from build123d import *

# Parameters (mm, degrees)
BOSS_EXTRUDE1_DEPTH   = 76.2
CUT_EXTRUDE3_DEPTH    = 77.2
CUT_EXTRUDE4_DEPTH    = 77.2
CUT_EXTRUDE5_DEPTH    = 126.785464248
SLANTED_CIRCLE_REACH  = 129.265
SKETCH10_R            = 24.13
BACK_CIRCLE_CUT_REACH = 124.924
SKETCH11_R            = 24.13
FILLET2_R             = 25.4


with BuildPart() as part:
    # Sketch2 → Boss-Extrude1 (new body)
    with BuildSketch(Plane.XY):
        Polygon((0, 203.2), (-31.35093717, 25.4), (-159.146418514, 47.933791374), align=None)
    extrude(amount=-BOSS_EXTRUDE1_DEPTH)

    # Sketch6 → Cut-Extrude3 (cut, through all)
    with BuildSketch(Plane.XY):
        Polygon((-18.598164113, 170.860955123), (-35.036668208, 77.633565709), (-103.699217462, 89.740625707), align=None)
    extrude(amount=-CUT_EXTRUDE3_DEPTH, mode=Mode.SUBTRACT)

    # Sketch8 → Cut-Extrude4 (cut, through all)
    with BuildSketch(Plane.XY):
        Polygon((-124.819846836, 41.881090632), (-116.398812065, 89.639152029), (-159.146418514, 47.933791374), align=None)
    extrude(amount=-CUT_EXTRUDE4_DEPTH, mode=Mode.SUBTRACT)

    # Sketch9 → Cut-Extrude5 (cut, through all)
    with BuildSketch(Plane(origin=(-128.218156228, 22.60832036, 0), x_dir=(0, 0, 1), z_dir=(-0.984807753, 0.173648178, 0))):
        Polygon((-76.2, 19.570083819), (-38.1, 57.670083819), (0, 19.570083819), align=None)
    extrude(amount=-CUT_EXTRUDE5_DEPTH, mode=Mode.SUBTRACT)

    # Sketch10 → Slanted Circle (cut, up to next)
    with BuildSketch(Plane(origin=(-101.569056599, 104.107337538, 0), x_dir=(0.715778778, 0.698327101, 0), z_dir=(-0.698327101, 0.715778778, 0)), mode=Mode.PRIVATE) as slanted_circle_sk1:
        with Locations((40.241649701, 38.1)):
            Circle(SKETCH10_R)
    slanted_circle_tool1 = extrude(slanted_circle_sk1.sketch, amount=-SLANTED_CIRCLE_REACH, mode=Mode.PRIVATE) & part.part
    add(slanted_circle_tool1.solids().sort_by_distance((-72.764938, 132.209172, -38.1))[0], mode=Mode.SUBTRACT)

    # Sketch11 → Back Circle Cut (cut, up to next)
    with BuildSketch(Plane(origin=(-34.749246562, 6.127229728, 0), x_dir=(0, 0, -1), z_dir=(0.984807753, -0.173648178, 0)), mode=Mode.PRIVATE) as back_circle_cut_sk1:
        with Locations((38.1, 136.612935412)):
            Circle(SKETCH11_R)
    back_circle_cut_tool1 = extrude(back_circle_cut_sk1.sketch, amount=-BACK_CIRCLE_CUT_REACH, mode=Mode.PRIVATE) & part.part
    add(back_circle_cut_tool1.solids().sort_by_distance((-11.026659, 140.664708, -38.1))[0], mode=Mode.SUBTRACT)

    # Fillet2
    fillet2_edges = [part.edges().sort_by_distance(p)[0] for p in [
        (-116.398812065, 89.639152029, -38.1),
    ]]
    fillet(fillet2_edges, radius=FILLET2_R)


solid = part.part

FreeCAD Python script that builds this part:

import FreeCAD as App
import Part
import Sketcher

V = App.Vector
Q = App.Units.Quantity


def edges_at(feature, points):
    """Names of the edges that pass closest to the given points."""
    edges = feature.Shape.Edges
    near = lambda p: min(range(len(edges)), key=lambda i: edges[i].distToShape(Part.Vertex(*p))[0])
    return sorted({f"Edge{near(p) + 1}" for p in points})

doc = App.newDocument("Part")
body = doc.addObject("PartDesign::Body", "Body")

# Sketch on XY plane
sketch1 = doc.addObject("Sketcher::SketchObject", "Sketch")
body.addObject(sketch1)
sketch1.AttachmentSupport = (doc.XY_Plane, [""])
sketch1.MapMode = "FlatFace"
sketch1.addGeometry([
    Part.LineSegment(V(-31, 25, 0), V(0, 203, 0)),
    Part.LineSegment(V(0, 203, 0), V(-159, 48, 0)),
    Part.LineSegment(V(-159, 48, 0), V(-31, 25, 0)),
], False)
sketch1.addConstraint([
    Sketcher.Constraint("Coincident", 0, 2, 1, 1),
    Sketcher.Constraint("Coincident", 1, 2, 2, 1),
    Sketcher.Constraint("Coincident", 2, 2, 0, 1),
    Sketcher.Constraint("PointOnObject", 0, 2, -2),
    Sketcher.Constraint("Perpendicular", 0, 2),
    Sketcher.Constraint("DistanceY", -1, 1, 0, 2, Q("8 in")),
    Sketcher.Constraint("DistanceY", -1, 1, 2, 2, Q("1 in")),
    Sketcher.Constraint("Angle", 0, Q("80 deg")),
    Sketcher.Constraint("Distance", 1, 222.34023),
])
pad1 = doc.addObject("PartDesign::Pad", "Pad")
body.addObject(pad1)
pad1.Profile = sketch1
pad1.Length = Q("3 in")
pad1.Reversed = True

# Sketch on XY plane
sketch2 = doc.addObject("Sketcher::SketchObject", "Sketch001")
body.addObject(sketch2)
sketch2.AttachmentSupport = (doc.XY_Plane, [""])
sketch2.MapMode = "FlatFace"
sketch2.addGeometry([
    Part.LineSegment(V(-35, 78, 0), V(-19, 171, 0)),
    Part.LineSegment(V(-19, 171, 0), V(-104, 90, 0)),
    Part.LineSegment(V(-104, 90, 0), V(-35, 78, 0)),
], False)
sketch2.addConstraint([
    Sketcher.Constraint("Coincident", 0, 2, 1, 1),
    Sketcher.Constraint("Coincident", 1, 2, 2, 1),
    Sketcher.Constraint("Coincident", 2, 2, 0, 1),
    Sketcher.Constraint("Perpendicular", 0, 2),
    Sketcher.Constraint("Angle", 0, Q("80 deg")),
    Sketcher.Constraint("Distance", 2, 69.72178),
    Sketcher.Constraint("DistanceX", 2, 2, -1, 1, 35.036668),
    Sketcher.Constraint("DistanceY", 1, 2, 0, 2, 81.120329),
    Sketcher.Constraint("DistanceY", -1, 1, 0, 2, 170.860955),
])
pocket1 = doc.addObject("PartDesign::Pocket", "Pocket")
body.addObject(pocket1)
pocket1.Profile = sketch2
pocket1.Type = "ThroughAll"

# Sketch on XY plane
sketch3 = doc.addObject("Sketcher::SketchObject", "Sketch002")
body.addObject(sketch3)
sketch3.AttachmentSupport = (doc.XY_Plane, [""])
sketch3.MapMode = "FlatFace"
sketch3.addGeometry([
    Part.LineSegment(V(-125, 42, 0), V(-116, 90, 0)),
    Part.LineSegment(V(-116, 90, 0), V(-159, 48, 0)),
    Part.LineSegment(V(-159, 48, 0), V(-125, 42, 0)),
], False)
sketch3.addConstraint([
    Sketcher.Constraint("Coincident", 0, 2, 1, 1),
    Sketcher.Constraint("Coincident", 1, 2, 2, 1),
    Sketcher.Constraint("Coincident", 2, 2, 0, 1),
    Sketcher.Constraint("Perpendicular", 0, 2),
    Sketcher.Constraint("Angle", 0, Q("80 deg")),
    Sketcher.Constraint("DistanceY", 2, 2, 1, 2, 6.052701),
    Sketcher.Constraint("DistanceX", 1, 2, -1, 1, 159.146419),
    Sketcher.Constraint("DistanceY", -1, 1, 1, 2, 47.933791),
    Sketcher.Constraint("DistanceY", 1, 2, 0, 2, 41.705361),
])
pocket2 = doc.addObject("PartDesign::Pocket", "Pocket001")
body.addObject(pocket2)
pocket2.Profile = sketch3
pocket2.Type = "ThroughAll"

# Sketch on an angled plane
sketch4 = doc.addObject("Sketcher::SketchObject", "Sketch003")
body.addObject(sketch4)
sketch4.Placement = App.Placement(V(-128.218156, 22.60832, 0), App.Rotation(V(0, 0, 1), V(0.173648178, 0.984807753, 0), V(-0.984807753, 0.173648178, 0), "ZXY"))
sketch4.addGeometry([
    Part.LineSegment(V(-38, 58, 0), V(-76, 20, 0)),
    Part.LineSegment(V(-76, 20, 0), V(0, 20, 0)),
    Part.LineSegment(V(0, 20, 0), V(-38, 58, 0)),
], False)
sketch4.addConstraint([
    Sketcher.Constraint("Coincident", 0, 2, 1, 1),
    Sketcher.Constraint("Coincident", 1, 2, 2, 1),
    Sketcher.Constraint("Coincident", 2, 2, 0, 1),
    Sketcher.Constraint("Horizontal", 1),
    Sketcher.Constraint("PointOnObject", 1, 2, -2),
    Sketcher.Constraint("Perpendicular", 0, 2),
    Sketcher.Constraint("Equal", 0, 2),
    Sketcher.Constraint("DistanceX", 1, 1, 1, 2, Q("3 in")),
    Sketcher.Constraint("DistanceY", -1, 1, 0, 2, 19.570084),
])
pocket3 = doc.addObject("PartDesign::Pocket", "Pocket002")
body.addObject(pocket3)
pocket3.Profile = sketch4
pocket3.Type = "ThroughAll"

# Sketch on an angled plane
sketch5 = doc.addObject("Sketcher::SketchObject", "Sketch004")
body.addObject(sketch5)
sketch5.Placement = App.Placement(V(-101.569057, 104.107338, 0), App.Rotation(V(0.715778778, 0.698327101, 0), V(0, 0, -0.999999999), V(-0.698327101, 0.715778778, 0), "ZXY"))
sketch5.addGeometry(Part.Circle(V(40, 38, 0), V(0, 0, 1), 24), False)
sketch5.addConstraint([
    Sketcher.Constraint("Diameter", 0, Q("1.9 in")),
    Sketcher.Constraint("DistanceY", -1, 1, 0, 3, Q("1.5 in")),
    Sketcher.Constraint("DistanceX", -1, 1, 0, 3, 40.24165),
])
pocket4 = doc.addObject("PartDesign::Pocket", "Pocket003")
body.addObject(pocket4)
pocket4.Profile = sketch5
pocket4.Type = "UpToFirst"

# Sketch on an angled plane
sketch6 = doc.addObject("Sketcher::SketchObject", "Sketch005")
body.addObject(sketch6)
sketch6.Placement = App.Placement(V(-34.749247, 6.12723, 0), App.Rotation(V(0, 0, -1), V(0.173648178, 0.984807753, 0), V(0.984807753, -0.173648178, 0), "ZXY"))
sketch6.addGeometry(Part.Circle(V(38, 137, 0), V(0, 0, 1), 24), False)
sketch6.addConstraint([
    Sketcher.Constraint("Diameter", 0, Q("1.9 in")),
    Sketcher.Constraint("DistanceX", -1, 1, 0, 3, Q("1.5 in")),
    Sketcher.Constraint("DistanceY", -1, 1, 0, 3, 136.612935),
])
pocket5 = doc.addObject("PartDesign::Pocket", "Pocket004")
body.addObject(pocket5)
pocket5.Profile = sketch6
pocket5.Type = "UpToFirst"
doc.recompute()

fillet = doc.addObject("PartDesign::Fillet", "Fillet")
body.addObject(fillet)
fillet.Base = (pocket5, edges_at(pocket5, [(-116.399, 89.639, -38.1)]))
fillet.Radius = Q("1 in")

doc.recompute()
